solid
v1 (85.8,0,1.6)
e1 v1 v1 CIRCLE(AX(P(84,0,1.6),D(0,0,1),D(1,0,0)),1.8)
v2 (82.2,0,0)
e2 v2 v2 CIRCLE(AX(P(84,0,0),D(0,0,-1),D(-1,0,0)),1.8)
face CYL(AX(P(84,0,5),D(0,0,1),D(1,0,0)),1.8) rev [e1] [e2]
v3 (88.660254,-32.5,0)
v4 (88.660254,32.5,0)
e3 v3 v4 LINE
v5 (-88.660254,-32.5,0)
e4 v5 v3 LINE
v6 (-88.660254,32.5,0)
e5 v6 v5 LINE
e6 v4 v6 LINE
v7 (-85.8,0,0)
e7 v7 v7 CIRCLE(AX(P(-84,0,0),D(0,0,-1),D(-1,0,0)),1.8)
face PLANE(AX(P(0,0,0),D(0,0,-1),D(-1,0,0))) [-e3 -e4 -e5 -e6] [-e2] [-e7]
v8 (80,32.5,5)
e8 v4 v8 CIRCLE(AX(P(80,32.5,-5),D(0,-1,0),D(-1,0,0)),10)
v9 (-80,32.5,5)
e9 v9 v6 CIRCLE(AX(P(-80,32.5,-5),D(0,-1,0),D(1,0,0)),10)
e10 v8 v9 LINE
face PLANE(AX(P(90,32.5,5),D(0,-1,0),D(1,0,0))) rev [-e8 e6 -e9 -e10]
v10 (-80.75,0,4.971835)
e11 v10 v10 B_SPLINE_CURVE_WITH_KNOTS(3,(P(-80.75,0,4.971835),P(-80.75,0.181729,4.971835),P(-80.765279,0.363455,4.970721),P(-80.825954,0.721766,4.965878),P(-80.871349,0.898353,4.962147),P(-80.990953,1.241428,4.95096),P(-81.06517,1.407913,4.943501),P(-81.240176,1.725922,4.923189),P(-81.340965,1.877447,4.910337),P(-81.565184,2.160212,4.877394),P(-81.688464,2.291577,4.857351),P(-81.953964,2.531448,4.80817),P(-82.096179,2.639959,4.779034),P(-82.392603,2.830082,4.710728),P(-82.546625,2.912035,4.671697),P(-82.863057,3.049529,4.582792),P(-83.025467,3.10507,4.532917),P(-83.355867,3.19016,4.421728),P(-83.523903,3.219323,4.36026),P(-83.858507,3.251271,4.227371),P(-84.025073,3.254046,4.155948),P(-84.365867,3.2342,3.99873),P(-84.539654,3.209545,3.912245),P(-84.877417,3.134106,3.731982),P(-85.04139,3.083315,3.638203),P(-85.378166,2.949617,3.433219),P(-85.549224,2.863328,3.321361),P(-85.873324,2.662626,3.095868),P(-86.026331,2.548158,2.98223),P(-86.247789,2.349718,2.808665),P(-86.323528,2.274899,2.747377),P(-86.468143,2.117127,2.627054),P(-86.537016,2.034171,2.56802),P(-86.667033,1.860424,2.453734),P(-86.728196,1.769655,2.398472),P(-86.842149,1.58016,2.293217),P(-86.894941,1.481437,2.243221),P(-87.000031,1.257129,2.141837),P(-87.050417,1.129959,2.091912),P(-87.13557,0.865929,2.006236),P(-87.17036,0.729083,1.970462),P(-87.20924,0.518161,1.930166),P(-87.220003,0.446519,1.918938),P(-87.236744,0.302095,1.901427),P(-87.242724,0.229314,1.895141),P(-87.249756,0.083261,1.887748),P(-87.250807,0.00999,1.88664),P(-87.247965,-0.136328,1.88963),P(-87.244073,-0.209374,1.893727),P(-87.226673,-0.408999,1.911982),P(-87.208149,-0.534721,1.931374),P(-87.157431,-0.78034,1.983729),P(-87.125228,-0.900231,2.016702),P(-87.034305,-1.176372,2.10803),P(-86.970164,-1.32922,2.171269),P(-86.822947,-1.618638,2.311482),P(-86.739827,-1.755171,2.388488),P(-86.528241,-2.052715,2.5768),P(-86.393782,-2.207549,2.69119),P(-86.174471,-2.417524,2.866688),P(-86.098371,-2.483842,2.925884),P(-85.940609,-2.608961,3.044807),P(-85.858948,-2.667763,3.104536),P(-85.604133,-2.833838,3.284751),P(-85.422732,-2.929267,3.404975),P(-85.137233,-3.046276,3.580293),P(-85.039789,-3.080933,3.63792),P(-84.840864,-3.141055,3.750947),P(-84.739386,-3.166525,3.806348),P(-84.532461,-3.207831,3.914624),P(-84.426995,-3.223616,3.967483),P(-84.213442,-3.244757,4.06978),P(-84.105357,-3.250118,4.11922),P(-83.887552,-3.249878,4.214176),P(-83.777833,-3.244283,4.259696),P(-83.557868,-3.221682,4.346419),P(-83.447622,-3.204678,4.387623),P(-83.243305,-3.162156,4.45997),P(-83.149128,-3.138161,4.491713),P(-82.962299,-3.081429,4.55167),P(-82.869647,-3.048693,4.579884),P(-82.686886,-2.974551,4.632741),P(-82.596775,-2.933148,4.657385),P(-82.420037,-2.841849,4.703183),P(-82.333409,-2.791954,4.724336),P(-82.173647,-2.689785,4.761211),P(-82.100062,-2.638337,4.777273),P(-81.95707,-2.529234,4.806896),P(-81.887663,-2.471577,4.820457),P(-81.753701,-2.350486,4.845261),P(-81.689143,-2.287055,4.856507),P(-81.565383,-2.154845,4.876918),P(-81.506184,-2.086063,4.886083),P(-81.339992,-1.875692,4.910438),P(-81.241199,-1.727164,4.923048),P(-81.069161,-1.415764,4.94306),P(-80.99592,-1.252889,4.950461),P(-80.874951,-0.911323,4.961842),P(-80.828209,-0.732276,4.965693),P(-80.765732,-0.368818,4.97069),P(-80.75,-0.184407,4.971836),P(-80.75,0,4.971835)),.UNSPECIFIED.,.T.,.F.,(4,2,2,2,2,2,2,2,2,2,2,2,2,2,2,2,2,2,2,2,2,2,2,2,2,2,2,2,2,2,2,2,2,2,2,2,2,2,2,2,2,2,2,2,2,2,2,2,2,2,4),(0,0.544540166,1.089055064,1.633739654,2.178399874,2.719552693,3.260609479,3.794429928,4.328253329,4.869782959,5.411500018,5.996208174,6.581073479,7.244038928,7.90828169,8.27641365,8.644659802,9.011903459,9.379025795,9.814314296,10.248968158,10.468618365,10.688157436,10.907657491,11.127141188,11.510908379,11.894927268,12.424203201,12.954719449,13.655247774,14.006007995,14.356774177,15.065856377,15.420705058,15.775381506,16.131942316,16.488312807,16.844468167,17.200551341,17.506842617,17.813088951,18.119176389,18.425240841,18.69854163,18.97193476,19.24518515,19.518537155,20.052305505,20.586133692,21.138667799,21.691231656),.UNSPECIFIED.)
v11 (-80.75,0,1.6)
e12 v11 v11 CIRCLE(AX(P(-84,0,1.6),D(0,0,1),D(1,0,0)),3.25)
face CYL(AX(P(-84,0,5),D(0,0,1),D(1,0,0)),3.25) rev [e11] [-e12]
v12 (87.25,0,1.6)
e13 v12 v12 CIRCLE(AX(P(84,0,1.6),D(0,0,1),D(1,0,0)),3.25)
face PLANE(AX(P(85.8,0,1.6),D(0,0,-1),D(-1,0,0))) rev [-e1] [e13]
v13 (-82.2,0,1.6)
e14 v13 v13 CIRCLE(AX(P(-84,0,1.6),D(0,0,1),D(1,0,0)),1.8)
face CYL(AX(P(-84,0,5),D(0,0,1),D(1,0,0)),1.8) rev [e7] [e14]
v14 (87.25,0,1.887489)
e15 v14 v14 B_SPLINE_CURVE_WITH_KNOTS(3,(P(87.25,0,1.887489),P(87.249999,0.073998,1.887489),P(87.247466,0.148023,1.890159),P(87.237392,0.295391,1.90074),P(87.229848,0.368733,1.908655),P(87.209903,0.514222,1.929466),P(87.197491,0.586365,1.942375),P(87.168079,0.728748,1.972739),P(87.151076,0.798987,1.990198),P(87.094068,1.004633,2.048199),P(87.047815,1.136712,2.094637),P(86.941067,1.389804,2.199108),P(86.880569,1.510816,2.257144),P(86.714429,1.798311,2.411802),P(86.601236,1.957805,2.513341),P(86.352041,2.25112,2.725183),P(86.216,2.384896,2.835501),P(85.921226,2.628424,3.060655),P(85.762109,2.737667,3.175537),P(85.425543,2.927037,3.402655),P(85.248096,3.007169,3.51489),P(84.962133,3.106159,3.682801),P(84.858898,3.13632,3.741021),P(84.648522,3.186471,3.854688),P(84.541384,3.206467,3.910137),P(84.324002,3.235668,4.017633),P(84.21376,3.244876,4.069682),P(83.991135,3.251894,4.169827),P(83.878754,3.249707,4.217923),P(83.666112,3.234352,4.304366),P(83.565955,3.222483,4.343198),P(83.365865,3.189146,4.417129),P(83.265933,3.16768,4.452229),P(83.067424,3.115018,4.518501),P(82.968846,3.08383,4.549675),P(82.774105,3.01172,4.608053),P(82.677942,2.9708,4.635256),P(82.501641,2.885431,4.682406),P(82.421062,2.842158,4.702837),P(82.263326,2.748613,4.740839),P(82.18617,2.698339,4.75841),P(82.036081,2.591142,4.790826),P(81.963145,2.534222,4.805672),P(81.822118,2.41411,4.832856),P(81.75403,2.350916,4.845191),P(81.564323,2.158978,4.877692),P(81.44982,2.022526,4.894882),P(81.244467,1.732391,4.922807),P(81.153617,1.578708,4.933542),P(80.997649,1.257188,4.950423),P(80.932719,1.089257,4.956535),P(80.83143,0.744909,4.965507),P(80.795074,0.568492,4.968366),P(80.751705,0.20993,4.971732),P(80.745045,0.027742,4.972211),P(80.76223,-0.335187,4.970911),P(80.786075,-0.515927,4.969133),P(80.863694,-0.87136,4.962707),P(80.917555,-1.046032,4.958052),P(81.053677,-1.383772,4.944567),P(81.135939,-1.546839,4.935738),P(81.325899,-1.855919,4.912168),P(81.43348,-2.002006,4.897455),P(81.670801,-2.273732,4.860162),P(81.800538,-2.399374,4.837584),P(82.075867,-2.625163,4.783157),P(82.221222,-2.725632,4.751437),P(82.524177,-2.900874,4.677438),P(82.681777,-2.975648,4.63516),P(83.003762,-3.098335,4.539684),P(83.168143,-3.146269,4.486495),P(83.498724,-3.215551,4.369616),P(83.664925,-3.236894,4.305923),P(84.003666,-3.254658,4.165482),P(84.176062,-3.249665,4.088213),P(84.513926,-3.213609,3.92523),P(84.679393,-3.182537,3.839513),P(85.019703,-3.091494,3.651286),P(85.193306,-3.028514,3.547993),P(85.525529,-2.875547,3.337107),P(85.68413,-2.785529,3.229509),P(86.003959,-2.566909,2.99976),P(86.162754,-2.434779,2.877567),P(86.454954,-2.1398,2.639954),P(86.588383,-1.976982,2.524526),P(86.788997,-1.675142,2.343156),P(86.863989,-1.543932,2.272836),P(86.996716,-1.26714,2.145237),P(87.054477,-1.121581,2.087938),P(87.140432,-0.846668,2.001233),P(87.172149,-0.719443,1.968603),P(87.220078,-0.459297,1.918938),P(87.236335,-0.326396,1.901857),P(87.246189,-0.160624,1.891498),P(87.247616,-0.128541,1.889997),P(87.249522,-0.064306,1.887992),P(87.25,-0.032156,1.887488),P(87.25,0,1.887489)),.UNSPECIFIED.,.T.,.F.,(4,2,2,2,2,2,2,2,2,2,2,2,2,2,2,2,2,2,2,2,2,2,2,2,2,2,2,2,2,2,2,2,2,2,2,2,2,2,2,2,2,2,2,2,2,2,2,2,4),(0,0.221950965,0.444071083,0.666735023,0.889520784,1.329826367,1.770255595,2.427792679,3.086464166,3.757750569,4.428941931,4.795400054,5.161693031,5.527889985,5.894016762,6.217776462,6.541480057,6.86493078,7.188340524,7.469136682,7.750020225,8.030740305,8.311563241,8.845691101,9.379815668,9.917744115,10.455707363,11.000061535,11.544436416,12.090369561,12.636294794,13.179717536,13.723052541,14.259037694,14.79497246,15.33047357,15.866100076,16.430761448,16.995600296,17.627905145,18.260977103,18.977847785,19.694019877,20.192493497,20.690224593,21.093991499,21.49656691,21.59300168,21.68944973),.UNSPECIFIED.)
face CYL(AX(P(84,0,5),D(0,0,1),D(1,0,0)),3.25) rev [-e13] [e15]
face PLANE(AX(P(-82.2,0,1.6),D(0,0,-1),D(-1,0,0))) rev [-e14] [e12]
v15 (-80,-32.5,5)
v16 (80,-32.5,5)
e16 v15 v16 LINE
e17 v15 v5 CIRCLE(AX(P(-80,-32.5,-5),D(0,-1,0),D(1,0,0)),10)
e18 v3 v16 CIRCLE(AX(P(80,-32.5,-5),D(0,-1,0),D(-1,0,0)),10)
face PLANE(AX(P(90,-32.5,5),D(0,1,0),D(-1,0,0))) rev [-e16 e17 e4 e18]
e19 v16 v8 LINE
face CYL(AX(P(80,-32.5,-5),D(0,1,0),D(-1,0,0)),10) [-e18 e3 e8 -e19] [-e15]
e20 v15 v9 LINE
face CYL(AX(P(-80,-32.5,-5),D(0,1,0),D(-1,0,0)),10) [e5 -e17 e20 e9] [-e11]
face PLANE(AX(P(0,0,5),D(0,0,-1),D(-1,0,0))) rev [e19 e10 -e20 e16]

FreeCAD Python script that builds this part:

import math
import FreeCAD as App
import Part
import Sketcher

V = App.Vector


def add_polygon(sketch, points):
    """Adds a closed chain of lines whose ends are joined by coincident constraints."""
    first, n = sketch.GeometryCount, len(points)
    for a, b in zip(points, points[1:] + points[:1]):
        sketch.addGeometry(Part.LineSegment(App.Vector(*a, 0), App.Vector(*b, 0)), False)
    for i in range(n):
        sketch.addConstraint(Sketcher.Constraint("Coincident", first + i, 2, first + (i + 1) % n, 1))

doc = App.newDocument("Part")
body = doc.addObject("PartDesign::Body", "Body")

# Sketch on XY plane
sketch1 = body.newObject("Sketcher::SketchObject", "Sketch")
sketch1.AttachmentSupport = (doc.getObject("XY_Plane"), [""])
sketch1.MapMode = "FlatFace"
add_polygon(sketch1, [(-90, 32), (-90, -32), (90, -32), (90, 32)])  # lines 0-3
sketch1.addConstraint([
    Sketcher.Constraint("Vertical", 0),
    Sketcher.Constraint("Horizontal", 1),
    Sketcher.Constraint("Vertical", 2),
    Sketcher.Constraint("Horizontal", 3),
    Sketcher.Constraint("Symmetric", 0, 2, 2, 2, -1, 1),
    Sketcher.Constraint("DistanceX", 1, 1, 1, 2, 180.0),
    Sketcher.Constraint("DistanceY", 0, 2, 0, 1, 65.0),
])
pad1 = body.newObject("PartDesign::Pad", "Pad")
pad1.Profile = sketch1
pad1.Length = 5

# Sketch on XY plane
sketch2 = body.newObject("Sketcher::SketchObject", "Sketch001")
sketch2.AttachmentSupport = (doc.getObject("XY_Plane"), [""])
sketch2.MapMode = "FlatFace"
sketch2.AttachmentOffset = App.Placement(V(0, 0, 5), App.Rotation())
sketch2.addGeometry([
    Part.Circle(V(-84, 0, 0), V(0, 0, 1), 1.8),
    Part.Circle(V(84, 0, 0), V(0, 0, 1), 1.8),
], False)
sketch2.addConstraint([
    Sketcher.Constraint("Equal", 0, 1),
    Sketcher.Constraint("Symmetric", 0, 3, 1, 3, -1, 1),
    Sketcher.Constraint("PointOnObject", 0, 3, -1),
    Sketcher.Constraint("Diameter", 0, 3.6),
    Sketcher.Constraint("DistanceX", 0, 3, -1, 1, 84.0),
])
doc.recompute()
hole = body.newObject("PartDesign::Hole", "Hole")
hole.Profile = sketch2
hole.ThreadType = "None"
hole.Diameter = 3.6
hole.DepthType = "Dimension"
hole.Depth = 9.1
hole.DrillPoint = "Angled"
hole.DrillPointAngle = 118
hole.HoleCutType = "Counterbore"
hole.HoleCutDiameter = 6.5
hole.HoleCutDepth = 3.4

# Sketch on XZ plane
sketch3 = body.newObject("Sketcher::SketchObject", "Sketch002")
sketch3.AttachmentSupport = (doc.getObject("XZ_Plane"), [""])
sketch3.MapMode = "FlatFace"
sketch3.AttachmentOffset = App.Placement(V(0, 0, -32.5), App.Rotation())
sketch3.addGeometry([
    Part.LineSegment(V(-90, -5, 0), V(-90, 5, 0)),  # 0
    Part.LineSegment(V(-90, 5, 0), V(-80, 5, 0)),  # 1
    Part.ArcOfCircle(Part.Circle(V(-80, -5, 0), V(0, 0, 1), 10), math.radians(90), math.radians(180)),  # 2
    Part.LineSegment(V(80, 5, 0), V(90, 5, 0)),  # 3
    Part.LineSegment(V(90, 5, 0), V(90, -5, 0)),  # 4
    Part.ArcOfCircle(Part.Circle(V(80, -5, 0), V(0, 0, 1), 10), math.radians(0), math.radians(90)),  # 5
], False)
sketch3.addConstraint([
    Sketcher.Constraint("Coincident", 0, 2, 1, 1),
    Sketcher.Constraint("Tangent", 1, 2, 2, 1),
    Sketcher.Constraint("Tangent", 2, 2, 0, 1),
    Sketcher.Constraint("Coincident", 3, 2, 4, 1),
    Sketcher.Constraint("Tangent", 4, 2, 5, 1),
    Sketcher.Constraint("Tangent", 5, 2, 3, 1),
    Sketcher.Constraint("Vertical", 0),
    Sketcher.Constraint("Horizontal", 1),
    Sketcher.Constraint("Horizontal", 3),
    Sketcher.Constraint("Vertical", 4),
    Sketcher.Constraint("Equal", 2, 5),
    Sketcher.Constraint("Symmetric", 2, 2, 3, 2, -1, 1),
    Sketcher.Constraint("Horizontal", 2, 3, 5, 3),
    Sketcher.Constraint("Radius", 2, 10.0),
    Sketcher.Constraint("DistanceX", 2, 3, -1, 1, 80.0),
])
pocket1 = body.newObject("PartDesign::Pocket", "Pocket")
pocket1.Profile = sketch3
pocket1.Type = "ThroughAll"
pocket1.Reversed = True

doc.recompute()
